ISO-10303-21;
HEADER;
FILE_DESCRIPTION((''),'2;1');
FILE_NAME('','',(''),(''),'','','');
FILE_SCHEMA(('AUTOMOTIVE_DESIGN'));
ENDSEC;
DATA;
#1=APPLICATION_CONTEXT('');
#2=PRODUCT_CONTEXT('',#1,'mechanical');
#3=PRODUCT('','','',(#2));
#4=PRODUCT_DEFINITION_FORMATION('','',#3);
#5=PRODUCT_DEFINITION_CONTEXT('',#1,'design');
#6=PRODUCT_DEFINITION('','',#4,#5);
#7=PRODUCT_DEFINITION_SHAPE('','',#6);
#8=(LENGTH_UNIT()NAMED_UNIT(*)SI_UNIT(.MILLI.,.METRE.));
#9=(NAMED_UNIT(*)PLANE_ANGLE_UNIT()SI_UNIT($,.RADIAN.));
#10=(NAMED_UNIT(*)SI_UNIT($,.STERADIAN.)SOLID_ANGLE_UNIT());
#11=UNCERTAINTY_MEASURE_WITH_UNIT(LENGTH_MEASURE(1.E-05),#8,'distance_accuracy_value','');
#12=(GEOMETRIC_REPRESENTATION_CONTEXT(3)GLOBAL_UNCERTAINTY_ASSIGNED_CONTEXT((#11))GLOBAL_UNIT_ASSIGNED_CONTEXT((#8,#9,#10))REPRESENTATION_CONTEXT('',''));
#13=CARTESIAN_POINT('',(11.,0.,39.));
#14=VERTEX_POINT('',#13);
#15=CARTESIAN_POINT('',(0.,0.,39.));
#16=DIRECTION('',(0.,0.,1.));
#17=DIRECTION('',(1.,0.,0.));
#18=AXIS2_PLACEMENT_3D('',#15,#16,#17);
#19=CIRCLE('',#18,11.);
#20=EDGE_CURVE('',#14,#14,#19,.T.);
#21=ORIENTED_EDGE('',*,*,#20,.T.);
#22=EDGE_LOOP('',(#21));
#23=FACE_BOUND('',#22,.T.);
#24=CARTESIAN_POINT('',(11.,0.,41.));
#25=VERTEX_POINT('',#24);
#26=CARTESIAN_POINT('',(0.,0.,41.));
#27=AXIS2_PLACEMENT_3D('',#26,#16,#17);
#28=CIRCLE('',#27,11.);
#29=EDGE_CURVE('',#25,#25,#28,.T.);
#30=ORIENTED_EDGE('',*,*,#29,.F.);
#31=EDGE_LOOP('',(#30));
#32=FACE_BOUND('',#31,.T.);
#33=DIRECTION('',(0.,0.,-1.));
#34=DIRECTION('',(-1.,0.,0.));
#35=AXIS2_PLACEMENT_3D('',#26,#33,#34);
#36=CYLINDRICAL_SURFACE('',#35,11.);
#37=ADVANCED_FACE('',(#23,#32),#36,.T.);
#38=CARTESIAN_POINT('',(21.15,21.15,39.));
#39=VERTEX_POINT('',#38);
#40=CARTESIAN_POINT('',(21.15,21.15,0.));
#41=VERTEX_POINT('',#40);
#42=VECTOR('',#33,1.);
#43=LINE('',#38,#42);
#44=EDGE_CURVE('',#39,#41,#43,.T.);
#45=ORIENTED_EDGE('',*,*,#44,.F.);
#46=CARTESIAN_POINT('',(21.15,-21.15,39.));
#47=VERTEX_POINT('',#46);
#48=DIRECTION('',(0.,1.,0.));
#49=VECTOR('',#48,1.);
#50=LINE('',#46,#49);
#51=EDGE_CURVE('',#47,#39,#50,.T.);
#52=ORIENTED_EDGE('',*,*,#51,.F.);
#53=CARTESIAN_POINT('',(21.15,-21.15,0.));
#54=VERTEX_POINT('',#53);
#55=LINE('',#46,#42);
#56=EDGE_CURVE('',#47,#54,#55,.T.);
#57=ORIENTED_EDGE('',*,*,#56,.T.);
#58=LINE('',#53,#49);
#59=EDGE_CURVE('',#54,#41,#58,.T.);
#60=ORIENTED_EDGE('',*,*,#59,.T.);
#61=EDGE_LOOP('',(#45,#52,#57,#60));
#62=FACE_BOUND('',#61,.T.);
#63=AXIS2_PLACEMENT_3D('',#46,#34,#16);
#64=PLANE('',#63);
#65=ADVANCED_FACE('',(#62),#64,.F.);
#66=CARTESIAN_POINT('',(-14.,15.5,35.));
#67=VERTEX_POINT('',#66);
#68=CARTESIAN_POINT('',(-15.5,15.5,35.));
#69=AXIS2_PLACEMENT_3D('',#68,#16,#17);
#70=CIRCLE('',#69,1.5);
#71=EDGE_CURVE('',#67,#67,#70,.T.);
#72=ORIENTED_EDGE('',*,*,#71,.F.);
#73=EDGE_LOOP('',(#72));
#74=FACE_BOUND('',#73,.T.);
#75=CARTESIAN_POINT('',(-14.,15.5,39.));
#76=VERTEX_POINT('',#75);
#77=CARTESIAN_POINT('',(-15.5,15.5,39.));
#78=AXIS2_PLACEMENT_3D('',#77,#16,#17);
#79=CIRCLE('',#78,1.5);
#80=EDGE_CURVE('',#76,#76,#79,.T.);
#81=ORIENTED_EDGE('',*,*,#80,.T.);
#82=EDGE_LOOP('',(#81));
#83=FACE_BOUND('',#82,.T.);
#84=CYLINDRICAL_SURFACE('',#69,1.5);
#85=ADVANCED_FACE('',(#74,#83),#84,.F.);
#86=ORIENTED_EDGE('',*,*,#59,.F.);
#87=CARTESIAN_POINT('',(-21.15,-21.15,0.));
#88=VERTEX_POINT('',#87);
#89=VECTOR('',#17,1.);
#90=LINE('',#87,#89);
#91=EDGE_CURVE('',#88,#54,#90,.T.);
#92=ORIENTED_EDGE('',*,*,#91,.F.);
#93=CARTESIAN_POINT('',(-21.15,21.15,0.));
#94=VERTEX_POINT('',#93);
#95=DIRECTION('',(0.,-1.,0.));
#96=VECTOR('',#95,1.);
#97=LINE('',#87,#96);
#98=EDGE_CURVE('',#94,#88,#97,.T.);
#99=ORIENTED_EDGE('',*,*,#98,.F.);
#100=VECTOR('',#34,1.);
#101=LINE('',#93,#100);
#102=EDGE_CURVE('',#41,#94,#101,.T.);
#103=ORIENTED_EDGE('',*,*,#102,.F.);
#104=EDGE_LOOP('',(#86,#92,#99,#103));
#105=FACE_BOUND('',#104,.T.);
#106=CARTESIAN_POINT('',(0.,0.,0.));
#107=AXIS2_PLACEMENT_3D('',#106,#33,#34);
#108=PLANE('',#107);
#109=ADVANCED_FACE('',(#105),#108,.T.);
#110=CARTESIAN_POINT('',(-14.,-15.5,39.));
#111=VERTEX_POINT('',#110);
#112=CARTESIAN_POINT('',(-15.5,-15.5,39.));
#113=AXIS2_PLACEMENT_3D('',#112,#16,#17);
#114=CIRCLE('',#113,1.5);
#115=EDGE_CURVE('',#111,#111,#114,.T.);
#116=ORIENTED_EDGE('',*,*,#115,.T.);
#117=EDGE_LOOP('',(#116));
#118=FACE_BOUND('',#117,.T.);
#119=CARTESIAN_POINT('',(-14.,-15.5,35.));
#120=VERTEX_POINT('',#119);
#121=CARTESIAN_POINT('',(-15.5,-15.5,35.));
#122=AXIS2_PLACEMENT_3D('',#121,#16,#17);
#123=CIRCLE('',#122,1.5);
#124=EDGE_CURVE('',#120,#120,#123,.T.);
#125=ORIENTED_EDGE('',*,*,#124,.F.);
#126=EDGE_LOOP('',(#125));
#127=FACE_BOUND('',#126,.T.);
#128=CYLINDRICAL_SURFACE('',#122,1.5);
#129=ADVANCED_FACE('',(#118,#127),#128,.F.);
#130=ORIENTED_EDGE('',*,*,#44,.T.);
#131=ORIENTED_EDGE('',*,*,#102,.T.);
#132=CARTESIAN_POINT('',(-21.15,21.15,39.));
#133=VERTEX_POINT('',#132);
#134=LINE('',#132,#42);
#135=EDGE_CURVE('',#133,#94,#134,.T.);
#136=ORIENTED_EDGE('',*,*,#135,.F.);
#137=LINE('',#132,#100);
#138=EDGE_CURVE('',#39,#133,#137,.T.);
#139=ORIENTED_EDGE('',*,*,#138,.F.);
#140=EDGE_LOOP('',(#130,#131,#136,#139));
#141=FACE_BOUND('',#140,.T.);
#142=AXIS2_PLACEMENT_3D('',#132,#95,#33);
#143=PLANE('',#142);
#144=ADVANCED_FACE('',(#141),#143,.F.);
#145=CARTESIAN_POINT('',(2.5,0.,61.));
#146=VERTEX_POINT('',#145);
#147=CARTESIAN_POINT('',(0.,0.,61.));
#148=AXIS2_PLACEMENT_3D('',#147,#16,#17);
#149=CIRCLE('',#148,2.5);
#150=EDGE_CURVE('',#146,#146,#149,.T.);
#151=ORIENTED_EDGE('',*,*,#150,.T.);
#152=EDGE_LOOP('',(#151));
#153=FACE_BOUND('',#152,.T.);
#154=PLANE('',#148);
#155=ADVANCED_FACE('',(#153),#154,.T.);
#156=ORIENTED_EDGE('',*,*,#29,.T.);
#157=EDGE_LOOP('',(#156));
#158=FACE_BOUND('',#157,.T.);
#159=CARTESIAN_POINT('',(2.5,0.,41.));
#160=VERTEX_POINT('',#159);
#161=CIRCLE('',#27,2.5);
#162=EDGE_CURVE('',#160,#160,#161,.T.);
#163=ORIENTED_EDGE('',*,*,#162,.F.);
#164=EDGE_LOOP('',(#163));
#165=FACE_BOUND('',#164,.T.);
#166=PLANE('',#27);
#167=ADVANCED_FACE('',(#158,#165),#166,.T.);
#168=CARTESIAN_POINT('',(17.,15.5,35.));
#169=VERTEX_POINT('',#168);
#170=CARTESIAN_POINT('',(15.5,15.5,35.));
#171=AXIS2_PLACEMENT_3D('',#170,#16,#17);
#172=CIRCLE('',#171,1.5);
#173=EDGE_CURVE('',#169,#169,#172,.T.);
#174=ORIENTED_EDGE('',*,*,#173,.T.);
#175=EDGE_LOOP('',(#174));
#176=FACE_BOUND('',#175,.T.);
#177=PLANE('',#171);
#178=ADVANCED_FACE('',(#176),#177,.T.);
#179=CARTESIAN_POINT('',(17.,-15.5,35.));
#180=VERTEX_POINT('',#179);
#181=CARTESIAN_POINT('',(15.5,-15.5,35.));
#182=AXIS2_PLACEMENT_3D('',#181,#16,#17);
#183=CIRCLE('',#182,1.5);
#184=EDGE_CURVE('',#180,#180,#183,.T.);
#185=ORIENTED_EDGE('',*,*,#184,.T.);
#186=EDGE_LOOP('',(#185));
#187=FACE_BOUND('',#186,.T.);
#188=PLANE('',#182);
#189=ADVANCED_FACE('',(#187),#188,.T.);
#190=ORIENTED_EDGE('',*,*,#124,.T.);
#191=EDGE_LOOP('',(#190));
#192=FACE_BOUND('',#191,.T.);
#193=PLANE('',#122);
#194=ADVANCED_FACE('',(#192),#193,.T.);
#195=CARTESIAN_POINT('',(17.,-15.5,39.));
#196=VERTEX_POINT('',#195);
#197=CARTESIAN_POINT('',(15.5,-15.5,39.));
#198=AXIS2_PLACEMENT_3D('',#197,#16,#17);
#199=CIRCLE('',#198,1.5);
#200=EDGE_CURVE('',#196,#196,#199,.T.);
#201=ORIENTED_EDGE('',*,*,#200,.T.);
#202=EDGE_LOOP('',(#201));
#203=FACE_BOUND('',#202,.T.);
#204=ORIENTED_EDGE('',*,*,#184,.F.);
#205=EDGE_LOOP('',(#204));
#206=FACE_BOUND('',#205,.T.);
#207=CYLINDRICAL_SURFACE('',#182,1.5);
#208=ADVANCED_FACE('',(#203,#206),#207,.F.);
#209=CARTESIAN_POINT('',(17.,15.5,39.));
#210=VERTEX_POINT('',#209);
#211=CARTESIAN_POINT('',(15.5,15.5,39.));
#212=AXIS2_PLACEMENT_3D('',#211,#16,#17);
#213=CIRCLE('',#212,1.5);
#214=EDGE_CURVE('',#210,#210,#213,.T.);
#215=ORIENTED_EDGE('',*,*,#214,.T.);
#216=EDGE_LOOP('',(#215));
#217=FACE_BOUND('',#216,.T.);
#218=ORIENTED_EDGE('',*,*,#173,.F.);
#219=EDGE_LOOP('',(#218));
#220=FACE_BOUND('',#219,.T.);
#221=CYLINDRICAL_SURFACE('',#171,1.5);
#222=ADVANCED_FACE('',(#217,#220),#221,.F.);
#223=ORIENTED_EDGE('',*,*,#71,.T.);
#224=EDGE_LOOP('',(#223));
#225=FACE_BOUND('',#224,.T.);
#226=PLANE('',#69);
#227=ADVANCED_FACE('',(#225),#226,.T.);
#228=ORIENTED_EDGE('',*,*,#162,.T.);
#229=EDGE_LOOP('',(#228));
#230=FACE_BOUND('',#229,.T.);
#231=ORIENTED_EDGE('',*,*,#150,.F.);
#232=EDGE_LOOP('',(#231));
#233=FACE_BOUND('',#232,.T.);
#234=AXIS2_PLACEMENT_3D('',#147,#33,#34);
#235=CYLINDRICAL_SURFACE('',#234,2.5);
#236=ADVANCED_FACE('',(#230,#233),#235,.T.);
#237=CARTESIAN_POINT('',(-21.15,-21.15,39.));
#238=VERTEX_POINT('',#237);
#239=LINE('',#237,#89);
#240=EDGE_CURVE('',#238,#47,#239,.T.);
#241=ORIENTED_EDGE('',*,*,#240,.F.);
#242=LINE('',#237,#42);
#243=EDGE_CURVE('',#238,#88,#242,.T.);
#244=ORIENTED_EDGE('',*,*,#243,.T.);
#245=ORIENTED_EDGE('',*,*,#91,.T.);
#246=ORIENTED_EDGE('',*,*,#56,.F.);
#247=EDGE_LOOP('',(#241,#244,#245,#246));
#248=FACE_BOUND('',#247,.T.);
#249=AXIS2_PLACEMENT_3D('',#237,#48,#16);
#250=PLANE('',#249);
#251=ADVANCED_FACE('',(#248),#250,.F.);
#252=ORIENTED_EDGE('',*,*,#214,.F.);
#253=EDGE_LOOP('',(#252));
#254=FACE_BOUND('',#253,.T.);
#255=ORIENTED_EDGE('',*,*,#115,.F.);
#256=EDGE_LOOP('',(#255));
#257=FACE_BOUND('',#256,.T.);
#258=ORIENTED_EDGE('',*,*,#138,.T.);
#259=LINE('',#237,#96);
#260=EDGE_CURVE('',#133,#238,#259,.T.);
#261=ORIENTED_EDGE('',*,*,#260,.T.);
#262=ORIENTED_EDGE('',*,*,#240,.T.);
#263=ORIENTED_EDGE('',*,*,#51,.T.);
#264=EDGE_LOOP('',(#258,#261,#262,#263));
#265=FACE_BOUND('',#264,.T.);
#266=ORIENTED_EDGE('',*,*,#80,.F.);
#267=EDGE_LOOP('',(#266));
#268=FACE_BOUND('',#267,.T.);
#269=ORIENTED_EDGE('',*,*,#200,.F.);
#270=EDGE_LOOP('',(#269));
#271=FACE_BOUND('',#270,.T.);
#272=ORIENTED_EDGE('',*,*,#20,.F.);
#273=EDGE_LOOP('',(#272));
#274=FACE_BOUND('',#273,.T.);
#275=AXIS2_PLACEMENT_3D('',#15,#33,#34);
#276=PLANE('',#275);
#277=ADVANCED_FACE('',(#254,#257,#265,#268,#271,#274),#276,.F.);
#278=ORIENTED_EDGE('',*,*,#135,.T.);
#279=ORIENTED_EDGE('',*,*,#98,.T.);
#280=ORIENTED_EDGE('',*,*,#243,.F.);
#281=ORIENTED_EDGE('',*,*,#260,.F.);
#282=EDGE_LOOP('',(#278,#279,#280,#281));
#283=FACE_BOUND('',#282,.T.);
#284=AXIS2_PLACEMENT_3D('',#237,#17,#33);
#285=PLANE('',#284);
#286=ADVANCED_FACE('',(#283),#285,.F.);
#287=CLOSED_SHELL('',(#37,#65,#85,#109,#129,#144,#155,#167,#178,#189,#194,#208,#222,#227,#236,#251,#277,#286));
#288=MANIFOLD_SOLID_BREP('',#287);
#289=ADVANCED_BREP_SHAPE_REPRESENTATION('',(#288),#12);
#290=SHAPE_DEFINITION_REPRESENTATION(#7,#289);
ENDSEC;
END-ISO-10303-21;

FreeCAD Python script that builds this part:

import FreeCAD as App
import Part
import Sketcher

doc = App.newDocument("Part")
body = doc.addObject("PartDesign::Body", "Body")

sketch1 = body.newObject("Sketcher::SketchObject", "Sketch")
sketch1.AttachmentSupport = (doc.getObject("XY_Plane"), [""])
sketch1.MapMode = "FlatFace"
sketch1.addGeometry(Part.LineSegment(App.Vector(-21, 21, 0), App.Vector(-21, -21, 0)), False)
sketch1.addGeometry(Part.LineSegment(App.Vector(-21, -21, 0), App.Vector(21, -21, 0)), False)
sketch1.addGeometry(Part.LineSegment(App.Vector(21, -21, 0), App.Vector(21, 21, 0)), False)
sketch1.addGeometry(Part.LineSegment(App.Vector(21, 21, 0), App.Vector(-21, 21, 0)), False)
sketch1.addConstraint(Sketcher.Constraint("Coincident", 0, 2, 1, 1))
sketch1.addConstraint(Sketcher.Constraint("Coincident", 1, 2, 2, 1))
sketch1.addConstraint(Sketcher.Constraint("Coincident", 2, 2, 3, 1))
sketch1.addConstraint(Sketcher.Constraint("Coincident", 3, 2, 0, 1))
sketch1.addConstraint(Sketcher.Constraint("Vertical", 0))
sketch1.addConstraint(Sketcher.Constraint("Horizontal", 1))
sketch1.addConstraint(Sketcher.Constraint("Vertical", 2))
sketch1.addConstraint(Sketcher.Constraint("Horizontal", 3))
sketch1.addConstraint(Sketcher.Constraint("Symmetric", 0, 2, 2, 2, -1, 1))
sketch1.addConstraint(Sketcher.Constraint("Equal", 3, 0))
sketch1.addConstraint(Sketcher.Constraint("DistanceX", 1, 1, 1, 2, 42.3))
pad1 = body.newObject("PartDesign::Pad", "Pad")
pad1.Profile = sketch1
pad1.Length = 39

sketch2 = body.newObject("Sketcher::SketchObject", "Sketch001")
sketch2.AttachmentSupport = (doc.getObject("XY_Plane"), [""])
sketch2.MapMode = "FlatFace"
sketch2.AttachmentOffset = App.Placement(App.Vector(0, 0, 39), App.Rotation())
sketch2.addGeometry(Part.Circle(App.Vector(0, 0, 0), App.Vector(0, 0, 1), 11), False)
sketch2.addConstraint(Sketcher.Constraint("Coincident", 0, 3, -1, 1))
sketch2.addConstraint(Sketcher.Constraint("Diameter", 0, 22.0))
pad2 = body.newObject("PartDesign::Pad", "Pad001")
pad2.Profile = sketch2
pad2.Length = 2

sketch3 = body.newObject("Sketcher::SketchObject", "Sketch002")
sketch3.AttachmentSupport = (doc.getObject("XY_Plane"), [""])
sketch3.MapMode = "FlatFace"
sketch3.AttachmentOffset = App.Placement(App.Vector(0, 0, 41), App.Rotation())
sketch3.addGeometry(Part.Circle(App.Vector(0, 0, 0), App.Vector(0, 0, 1), 2.5), False)
sketch3.addConstraint(Sketcher.Constraint("Coincident", 0, 3, -1, 1))
sketch3.addConstraint(Sketcher.Constraint("Diameter", 0, 5.0))
pad3 = body.newObject("PartDesign::Pad", "Pad002")
pad3.Profile = sketch3
pad3.Length = 20

sketch4 = body.newObject("Sketcher::SketchObject", "Sketch003")
sketch4.AttachmentSupport = (doc.getObject("XY_Plane"), [""])
sketch4.MapMode = "FlatFace"
sketch4.AttachmentOffset = App.Placement(App.Vector(0, 0, 39), App.Rotation())
sketch4.addGeometry(Part.Circle(App.Vector(-15.5, 15.5, 0), App.Vector(0, 0, 1), 1.5), False)
sketch4.addGeometry(Part.Circle(App.Vector(15.5, 15.5, 0), App.Vector(0, 0, 1), 1.5), False)
sketch4.addGeometry(Part.Circle(App.Vector(15.5, -15.5, 0), App.Vector(0, 0, 1), 1.5), False)
sketch4.addGeometry(Part.Circle(App.Vector(-15.5, -15.5, 0), App.Vector(0, 0, 1), 1.5), False)
sketch4.addConstraint(Sketcher.Constraint("Equal", 0, 1))
sketch4.addConstraint(Sketcher.Constraint("Equal", 1, 2))
sketch4.addConstraint(Sketcher.Constraint("Equal", 2, 3))
sketch4.addConstraint(Sketcher.Constraint("Symmetric", 0, 3, 2, 3, -1, 1))
sketch4.addConstraint(Sketcher.Constraint("Symmetric", 1, 3, 3, 3, -1, 1))
sketch4.addConstraint(Sketcher.Constraint("Symmetric", 0, 3, 1, 3, -2))
sketch4.addConstraint(Sketcher.Constraint("Diameter", 0, 3.0))
sketch4.addConstraint(Sketcher.Constraint("DistanceX", 0, 3, 1, 3, 31.0))
sketch4.addConstraint(Sketcher.Constraint("DistanceY", 2, 3, 1, 3, 31.0))
pocket1 = body.newObject("PartDesign::Pocket", "Pocket")
pocket1.Profile = sketch4
pocket1.Length = 4

doc.recompute()
